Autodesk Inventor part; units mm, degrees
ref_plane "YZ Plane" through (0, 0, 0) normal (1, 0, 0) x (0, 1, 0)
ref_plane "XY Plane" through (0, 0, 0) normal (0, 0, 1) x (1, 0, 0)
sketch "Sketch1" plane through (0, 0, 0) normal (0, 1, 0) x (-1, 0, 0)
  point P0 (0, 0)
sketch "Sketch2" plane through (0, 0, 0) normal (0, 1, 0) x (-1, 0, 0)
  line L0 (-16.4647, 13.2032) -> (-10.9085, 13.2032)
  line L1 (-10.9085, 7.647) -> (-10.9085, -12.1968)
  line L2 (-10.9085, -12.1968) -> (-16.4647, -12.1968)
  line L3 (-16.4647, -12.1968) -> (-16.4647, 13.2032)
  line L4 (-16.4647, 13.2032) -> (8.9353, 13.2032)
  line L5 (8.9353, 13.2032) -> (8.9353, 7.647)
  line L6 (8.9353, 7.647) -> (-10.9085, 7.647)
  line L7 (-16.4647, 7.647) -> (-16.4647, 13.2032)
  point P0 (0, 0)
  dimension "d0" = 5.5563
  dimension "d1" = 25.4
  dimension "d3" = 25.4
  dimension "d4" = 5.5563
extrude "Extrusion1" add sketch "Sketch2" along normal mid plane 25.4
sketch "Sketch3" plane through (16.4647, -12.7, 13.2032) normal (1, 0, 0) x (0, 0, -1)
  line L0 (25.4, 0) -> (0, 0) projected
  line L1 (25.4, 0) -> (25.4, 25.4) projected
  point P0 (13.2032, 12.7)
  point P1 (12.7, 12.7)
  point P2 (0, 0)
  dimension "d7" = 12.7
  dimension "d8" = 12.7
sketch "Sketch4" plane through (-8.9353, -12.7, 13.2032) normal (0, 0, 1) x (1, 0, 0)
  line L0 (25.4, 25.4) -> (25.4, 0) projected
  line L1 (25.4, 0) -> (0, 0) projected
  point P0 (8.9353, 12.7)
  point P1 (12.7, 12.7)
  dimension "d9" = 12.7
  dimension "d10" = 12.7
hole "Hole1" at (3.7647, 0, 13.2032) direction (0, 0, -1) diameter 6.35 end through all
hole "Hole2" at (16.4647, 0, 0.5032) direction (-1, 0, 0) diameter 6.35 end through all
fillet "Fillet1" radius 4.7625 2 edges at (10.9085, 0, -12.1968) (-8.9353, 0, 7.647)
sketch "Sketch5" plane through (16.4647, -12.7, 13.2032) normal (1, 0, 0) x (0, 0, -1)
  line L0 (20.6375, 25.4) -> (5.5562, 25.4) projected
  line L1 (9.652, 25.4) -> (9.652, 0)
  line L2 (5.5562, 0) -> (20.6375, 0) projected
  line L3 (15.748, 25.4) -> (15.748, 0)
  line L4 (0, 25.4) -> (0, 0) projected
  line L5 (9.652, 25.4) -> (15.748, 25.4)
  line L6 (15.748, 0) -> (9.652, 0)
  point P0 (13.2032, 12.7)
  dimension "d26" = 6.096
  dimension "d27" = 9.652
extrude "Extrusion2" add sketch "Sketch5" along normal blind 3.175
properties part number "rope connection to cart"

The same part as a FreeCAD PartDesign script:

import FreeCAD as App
import Part
import Sketcher

V = App.Vector
Q = App.Units.Quantity


def edges_at(feature, points):
    """Names of the edges that pass closest to the given points."""
    edges = feature.Shape.Edges
    near = lambda p: min(range(len(edges)), key=lambda i: edges[i].distToShape(Part.Vertex(*p))[0])
    return sorted({f"Edge{near(p) + 1}" for p in points})


def add_polygon(sketch, points):
    """Adds a closed chain of lines whose ends are joined by coincident constraints."""
    first, n = sketch.GeometryCount, len(points)
    for a, b in zip(points, points[1:] + points[:1]):
        sketch.addGeometry(Part.LineSegment(App.Vector(*a, 0), App.Vector(*b, 0)), False)
    for i in range(n):
        sketch.addConstraint(Sketcher.Constraint("Coincident", first + i, 2, first + (i + 1) % n, 1))

doc = App.newDocument("Part")
body = doc.addObject("PartDesign::Body", "Body")

sketch1 = doc.addObject("Sketcher::SketchObject", "Sketch")
body.addObject(sketch1)
sketch1.AttachmentSupport = (doc.XZ_Plane, [""])
sketch1.MapMode = "FlatFace"
add_polygon(sketch1, [(-8.9353, 13.2032), (16.4647, 13.2032), (16.4647, -12.1968), (10.9085, -12.1968), (10.9085, 7.647), (-8.9353, 7.647)])
sketch1.addConstraint([
    Sketcher.Constraint("Horizontal", 0),
    Sketcher.Constraint("Vertical", 1),
    Sketcher.Constraint("Horizontal", 2),
    Sketcher.Constraint("Vertical", 3),
    Sketcher.Constraint("Horizontal", 4),
    Sketcher.Constraint("Vertical", 5),
    Sketcher.Constraint("Equal", 0, 1),
    Sketcher.Constraint("Equal", 4, 3),
    Sketcher.Constraint("DistanceX", 0, 1, 0, 2, Q("1 in")),
    Sketcher.Constraint("DistanceX", 2, 2, 2, 1, Q("0.218748 in")),
    Sketcher.Constraint("DistanceY", -1, 1, 0, 2, Q("0.5198 in")),
    Sketcher.Constraint("DistanceX", -1, 1, 0, 2, Q("16.4647 mm")),
])
pad1 = doc.addObject("PartDesign::Pad", "Pad")
body.addObject(pad1)
pad1.Profile = sketch1
pad1.Length = Q("1 in")
pad1.Midplane = True

sketch2 = doc.addObject("Sketcher::SketchObject", "Sketch001")
body.addObject(sketch2)
sketch2.AttachmentSupport = (doc.XY_Plane, [""])
sketch2.MapMode = "FlatFace"
sketch2.AttachmentOffset = App.Placement(V(0, 0, 0.519811 * 25.4), App.Rotation())
sketch2.addGeometry(Part.Circle(V(3.7647, 0, 0), V(0, 0, 1), 3.175), False)
sketch2.addConstraint([
    Sketcher.Constraint("PointOnObject", 0, 3, -1),
    Sketcher.Constraint("Diameter", 0, Q("0.25 in")),
    Sketcher.Constraint("DistanceX", -1, 1, 0, 3, Q("3.7647 mm")),
])
doc.recompute()
hole = doc.addObject("PartDesign::Hole", "Hole")
body.addObject(hole)
hole.Profile = sketch2
hole.ThreadType = "None"
hole.Diameter = Q("0.25 in")
hole.DepthType = "ThroughAll"

sketch3 = doc.addObject("Sketcher::SketchObject", "Sketch002")
body.addObject(sketch3)
sketch3.AttachmentSupport = (doc.YZ_Plane, [""])
sketch3.MapMode = "FlatFace"
sketch3.AttachmentOffset = App.Placement(V(0, 0, 16.4647), App.Rotation())
sketch3.addGeometry(Part.Circle(V(0, 0.5032, 0), V(0, 0, 1), 3.175), False)
sketch3.addConstraint([
    Sketcher.Constraint("PointOnObject", 0, 3, -2),
    Sketcher.Constraint("Diameter", 0, Q("0.25 in")),
    Sketcher.Constraint("DistanceY", -1, 1, 0, 3, Q("0.0198 in")),
])
doc.recompute()
hole2 = doc.addObject("PartDesign::Hole", "Hole001")
body.addObject(hole2)
hole2.Profile = sketch3
hole2.ThreadType = "None"
hole2.Diameter = Q("0.25 in")
hole2.DepthType = "ThroughAll"
doc.recompute()

fillet = doc.addObject("PartDesign::Fillet", "Fillet")
body.addObject(fillet)
fillet.Base = (hole2, edges_at(hole2, [(10.909, 0, -12.197), (-8.935, 0, 7.647)]))
fillet.Radius = Q("0.1875 in")

sketch4 = doc.addObject("Sketcher::SketchObject", "Sketch003")
body.addObject(sketch4)
sketch4.AttachmentSupport = (doc.YZ_Plane, [""])
sketch4.MapMode = "FlatFace"
sketch4.AttachmentOffset = App.Placement(V(0, 0, 16.4647), App.Rotation())
add_polygon(sketch4, [(-12.7, -2.5448), (12.7, -2.5448), (12.7, 3.5512), (-12.7, 3.5512)])
sketch4.addConstraint([
    Sketcher.Constraint("Horizontal", 0),
    Sketcher.Constraint("Vertical", 1),
    Sketcher.Constraint("Horizontal", 2),
    Sketcher.Constraint("Vertical", 3),
    Sketcher.Constraint("DistanceY", 1, 1, 1, 2, Q("0.24 in")),
    Sketcher.Constraint("DistanceX", 0, 1, 0, 2, Q("1 in")),
    Sketcher.Constraint("DistanceX", -1, 1, 0, 2, Q("0.5 in")),
    Sketcher.Constraint("DistanceY", 0, 2, -1, 1, Q("0.1002 in")),
])
pad2 = doc.addObject("PartDesign::Pad", "Pad001")
body.addObject(pad2)
pad2.Profile = sketch4
pad2.Length = Q("0.125 in")

doc.recompute()
